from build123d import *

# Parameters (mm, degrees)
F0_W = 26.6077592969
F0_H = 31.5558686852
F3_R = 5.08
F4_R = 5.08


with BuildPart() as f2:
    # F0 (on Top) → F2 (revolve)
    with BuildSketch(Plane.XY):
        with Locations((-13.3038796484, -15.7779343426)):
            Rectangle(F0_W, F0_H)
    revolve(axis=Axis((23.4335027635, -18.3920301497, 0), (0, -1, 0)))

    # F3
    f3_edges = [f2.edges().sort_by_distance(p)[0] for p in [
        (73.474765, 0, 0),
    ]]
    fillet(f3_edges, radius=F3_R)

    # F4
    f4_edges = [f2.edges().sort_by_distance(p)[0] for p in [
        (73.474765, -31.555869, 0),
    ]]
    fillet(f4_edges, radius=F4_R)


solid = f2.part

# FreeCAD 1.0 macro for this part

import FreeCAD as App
import Part
import Sketcher

V = App.Vector
Q = App.Units.Quantity


def edges_at(feature, points):
    """Names of the edges that pass closest to the given points."""
    edges = feature.Shape.Edges
    near = lambda p: min(range(len(edges)), key=lambda i: edges[i].distToShape(Part.Vertex(*p))[0])
    return sorted({f"Edge{near(p) + 1}" for p in points})

doc = App.newDocument("Part")
body = doc.addObject("PartDesign::Body", "Body")

# Sketch on XY plane
sketch1 = body.newObject("Sketcher::SketchObject", "Sketch")
sketch1.AttachmentSupport = (doc.getObject("XY_Plane"), [""])
sketch1.MapMode = "FlatFace"
sketch1.addGeometry(Part.LineSegment(V(-27, 0, 0), V(-27, -32, 0)), False)
sketch1.addGeometry(Part.LineSegment(V(-27, -32, 0), V(0, -32, 0)), False)
sketch1.addGeometry(Part.LineSegment(V(0, -32, 0), V(0, 0, 0)), False)
sketch1.addGeometry(Part.LineSegment(V(0, 0, 0), V(-27, 0, 0)), False)
sketch1.addGeometry(Part.LineSegment(V(23, 0, 0), V(23, -32, 0)), True)  # axis
sketch1.addConstraint(Sketcher.Constraint("Coincident", 0, 2, 1, 1))
sketch1.addConstraint(Sketcher.Constraint("Coincident", 1, 2, 2, 1))
sketch1.addConstraint(Sketcher.Constraint("Coincident", 2, 2, 3, 1))
sketch1.addConstraint(Sketcher.Constraint("Coincident", 3, 2, 0, 1))
sketch1.addConstraint(Sketcher.Constraint("Vertical", 0))
sketch1.addConstraint(Sketcher.Constraint("Horizontal", 1))
sketch1.addConstraint(Sketcher.Constraint("Vertical", 2))
sketch1.addConstraint(Sketcher.Constraint("Horizontal", 3))
sketch1.addConstraint(Sketcher.Constraint("Vertical", 4))
sketch1.addConstraint(Sketcher.Constraint("Coincident", 2, 2, -1, 1))
sketch1.addConstraint(Sketcher.Constraint("PointOnObject", 4, 1, -1))
sketch1.addConstraint(Sketcher.Constraint("Horizontal", 1, 2, 4, 2))
sketch1.addConstraint(Sketcher.Constraint("DistanceX", 1, 1, 1, 2, Q("26.607759 mm")))
sketch1.addConstraint(Sketcher.Constraint("DistanceY", 0, 2, 0, 1, Q("31.555869 mm")))
sketch1.addConstraint(Sketcher.Constraint("DistanceX", -1, 1, 4, 1, Q("23.433503 mm")))
revolution = body.newObject("PartDesign::Revolution", "Revolution")
revolution.Profile = sketch1
revolution.ReferenceAxis = (sketch1, ["Axis0"])
revolution.Angle = 360
doc.recompute()

fillet = body.newObject("PartDesign::Fillet", "Fillet")
fillet.Base = (revolution, edges_at(revolution, [(73.475, 0, 0)]))
fillet.Radius = Q("0.2 in")
doc.recompute()

fillet2 = body.newObject("PartDesign::Fillet", "Fillet001")
fillet2.Base = (fillet, edges_at(fillet, [(73.475, -31.556, 0)]))
fillet2.Radius = Q("0.2 in")

doc.recompute()
